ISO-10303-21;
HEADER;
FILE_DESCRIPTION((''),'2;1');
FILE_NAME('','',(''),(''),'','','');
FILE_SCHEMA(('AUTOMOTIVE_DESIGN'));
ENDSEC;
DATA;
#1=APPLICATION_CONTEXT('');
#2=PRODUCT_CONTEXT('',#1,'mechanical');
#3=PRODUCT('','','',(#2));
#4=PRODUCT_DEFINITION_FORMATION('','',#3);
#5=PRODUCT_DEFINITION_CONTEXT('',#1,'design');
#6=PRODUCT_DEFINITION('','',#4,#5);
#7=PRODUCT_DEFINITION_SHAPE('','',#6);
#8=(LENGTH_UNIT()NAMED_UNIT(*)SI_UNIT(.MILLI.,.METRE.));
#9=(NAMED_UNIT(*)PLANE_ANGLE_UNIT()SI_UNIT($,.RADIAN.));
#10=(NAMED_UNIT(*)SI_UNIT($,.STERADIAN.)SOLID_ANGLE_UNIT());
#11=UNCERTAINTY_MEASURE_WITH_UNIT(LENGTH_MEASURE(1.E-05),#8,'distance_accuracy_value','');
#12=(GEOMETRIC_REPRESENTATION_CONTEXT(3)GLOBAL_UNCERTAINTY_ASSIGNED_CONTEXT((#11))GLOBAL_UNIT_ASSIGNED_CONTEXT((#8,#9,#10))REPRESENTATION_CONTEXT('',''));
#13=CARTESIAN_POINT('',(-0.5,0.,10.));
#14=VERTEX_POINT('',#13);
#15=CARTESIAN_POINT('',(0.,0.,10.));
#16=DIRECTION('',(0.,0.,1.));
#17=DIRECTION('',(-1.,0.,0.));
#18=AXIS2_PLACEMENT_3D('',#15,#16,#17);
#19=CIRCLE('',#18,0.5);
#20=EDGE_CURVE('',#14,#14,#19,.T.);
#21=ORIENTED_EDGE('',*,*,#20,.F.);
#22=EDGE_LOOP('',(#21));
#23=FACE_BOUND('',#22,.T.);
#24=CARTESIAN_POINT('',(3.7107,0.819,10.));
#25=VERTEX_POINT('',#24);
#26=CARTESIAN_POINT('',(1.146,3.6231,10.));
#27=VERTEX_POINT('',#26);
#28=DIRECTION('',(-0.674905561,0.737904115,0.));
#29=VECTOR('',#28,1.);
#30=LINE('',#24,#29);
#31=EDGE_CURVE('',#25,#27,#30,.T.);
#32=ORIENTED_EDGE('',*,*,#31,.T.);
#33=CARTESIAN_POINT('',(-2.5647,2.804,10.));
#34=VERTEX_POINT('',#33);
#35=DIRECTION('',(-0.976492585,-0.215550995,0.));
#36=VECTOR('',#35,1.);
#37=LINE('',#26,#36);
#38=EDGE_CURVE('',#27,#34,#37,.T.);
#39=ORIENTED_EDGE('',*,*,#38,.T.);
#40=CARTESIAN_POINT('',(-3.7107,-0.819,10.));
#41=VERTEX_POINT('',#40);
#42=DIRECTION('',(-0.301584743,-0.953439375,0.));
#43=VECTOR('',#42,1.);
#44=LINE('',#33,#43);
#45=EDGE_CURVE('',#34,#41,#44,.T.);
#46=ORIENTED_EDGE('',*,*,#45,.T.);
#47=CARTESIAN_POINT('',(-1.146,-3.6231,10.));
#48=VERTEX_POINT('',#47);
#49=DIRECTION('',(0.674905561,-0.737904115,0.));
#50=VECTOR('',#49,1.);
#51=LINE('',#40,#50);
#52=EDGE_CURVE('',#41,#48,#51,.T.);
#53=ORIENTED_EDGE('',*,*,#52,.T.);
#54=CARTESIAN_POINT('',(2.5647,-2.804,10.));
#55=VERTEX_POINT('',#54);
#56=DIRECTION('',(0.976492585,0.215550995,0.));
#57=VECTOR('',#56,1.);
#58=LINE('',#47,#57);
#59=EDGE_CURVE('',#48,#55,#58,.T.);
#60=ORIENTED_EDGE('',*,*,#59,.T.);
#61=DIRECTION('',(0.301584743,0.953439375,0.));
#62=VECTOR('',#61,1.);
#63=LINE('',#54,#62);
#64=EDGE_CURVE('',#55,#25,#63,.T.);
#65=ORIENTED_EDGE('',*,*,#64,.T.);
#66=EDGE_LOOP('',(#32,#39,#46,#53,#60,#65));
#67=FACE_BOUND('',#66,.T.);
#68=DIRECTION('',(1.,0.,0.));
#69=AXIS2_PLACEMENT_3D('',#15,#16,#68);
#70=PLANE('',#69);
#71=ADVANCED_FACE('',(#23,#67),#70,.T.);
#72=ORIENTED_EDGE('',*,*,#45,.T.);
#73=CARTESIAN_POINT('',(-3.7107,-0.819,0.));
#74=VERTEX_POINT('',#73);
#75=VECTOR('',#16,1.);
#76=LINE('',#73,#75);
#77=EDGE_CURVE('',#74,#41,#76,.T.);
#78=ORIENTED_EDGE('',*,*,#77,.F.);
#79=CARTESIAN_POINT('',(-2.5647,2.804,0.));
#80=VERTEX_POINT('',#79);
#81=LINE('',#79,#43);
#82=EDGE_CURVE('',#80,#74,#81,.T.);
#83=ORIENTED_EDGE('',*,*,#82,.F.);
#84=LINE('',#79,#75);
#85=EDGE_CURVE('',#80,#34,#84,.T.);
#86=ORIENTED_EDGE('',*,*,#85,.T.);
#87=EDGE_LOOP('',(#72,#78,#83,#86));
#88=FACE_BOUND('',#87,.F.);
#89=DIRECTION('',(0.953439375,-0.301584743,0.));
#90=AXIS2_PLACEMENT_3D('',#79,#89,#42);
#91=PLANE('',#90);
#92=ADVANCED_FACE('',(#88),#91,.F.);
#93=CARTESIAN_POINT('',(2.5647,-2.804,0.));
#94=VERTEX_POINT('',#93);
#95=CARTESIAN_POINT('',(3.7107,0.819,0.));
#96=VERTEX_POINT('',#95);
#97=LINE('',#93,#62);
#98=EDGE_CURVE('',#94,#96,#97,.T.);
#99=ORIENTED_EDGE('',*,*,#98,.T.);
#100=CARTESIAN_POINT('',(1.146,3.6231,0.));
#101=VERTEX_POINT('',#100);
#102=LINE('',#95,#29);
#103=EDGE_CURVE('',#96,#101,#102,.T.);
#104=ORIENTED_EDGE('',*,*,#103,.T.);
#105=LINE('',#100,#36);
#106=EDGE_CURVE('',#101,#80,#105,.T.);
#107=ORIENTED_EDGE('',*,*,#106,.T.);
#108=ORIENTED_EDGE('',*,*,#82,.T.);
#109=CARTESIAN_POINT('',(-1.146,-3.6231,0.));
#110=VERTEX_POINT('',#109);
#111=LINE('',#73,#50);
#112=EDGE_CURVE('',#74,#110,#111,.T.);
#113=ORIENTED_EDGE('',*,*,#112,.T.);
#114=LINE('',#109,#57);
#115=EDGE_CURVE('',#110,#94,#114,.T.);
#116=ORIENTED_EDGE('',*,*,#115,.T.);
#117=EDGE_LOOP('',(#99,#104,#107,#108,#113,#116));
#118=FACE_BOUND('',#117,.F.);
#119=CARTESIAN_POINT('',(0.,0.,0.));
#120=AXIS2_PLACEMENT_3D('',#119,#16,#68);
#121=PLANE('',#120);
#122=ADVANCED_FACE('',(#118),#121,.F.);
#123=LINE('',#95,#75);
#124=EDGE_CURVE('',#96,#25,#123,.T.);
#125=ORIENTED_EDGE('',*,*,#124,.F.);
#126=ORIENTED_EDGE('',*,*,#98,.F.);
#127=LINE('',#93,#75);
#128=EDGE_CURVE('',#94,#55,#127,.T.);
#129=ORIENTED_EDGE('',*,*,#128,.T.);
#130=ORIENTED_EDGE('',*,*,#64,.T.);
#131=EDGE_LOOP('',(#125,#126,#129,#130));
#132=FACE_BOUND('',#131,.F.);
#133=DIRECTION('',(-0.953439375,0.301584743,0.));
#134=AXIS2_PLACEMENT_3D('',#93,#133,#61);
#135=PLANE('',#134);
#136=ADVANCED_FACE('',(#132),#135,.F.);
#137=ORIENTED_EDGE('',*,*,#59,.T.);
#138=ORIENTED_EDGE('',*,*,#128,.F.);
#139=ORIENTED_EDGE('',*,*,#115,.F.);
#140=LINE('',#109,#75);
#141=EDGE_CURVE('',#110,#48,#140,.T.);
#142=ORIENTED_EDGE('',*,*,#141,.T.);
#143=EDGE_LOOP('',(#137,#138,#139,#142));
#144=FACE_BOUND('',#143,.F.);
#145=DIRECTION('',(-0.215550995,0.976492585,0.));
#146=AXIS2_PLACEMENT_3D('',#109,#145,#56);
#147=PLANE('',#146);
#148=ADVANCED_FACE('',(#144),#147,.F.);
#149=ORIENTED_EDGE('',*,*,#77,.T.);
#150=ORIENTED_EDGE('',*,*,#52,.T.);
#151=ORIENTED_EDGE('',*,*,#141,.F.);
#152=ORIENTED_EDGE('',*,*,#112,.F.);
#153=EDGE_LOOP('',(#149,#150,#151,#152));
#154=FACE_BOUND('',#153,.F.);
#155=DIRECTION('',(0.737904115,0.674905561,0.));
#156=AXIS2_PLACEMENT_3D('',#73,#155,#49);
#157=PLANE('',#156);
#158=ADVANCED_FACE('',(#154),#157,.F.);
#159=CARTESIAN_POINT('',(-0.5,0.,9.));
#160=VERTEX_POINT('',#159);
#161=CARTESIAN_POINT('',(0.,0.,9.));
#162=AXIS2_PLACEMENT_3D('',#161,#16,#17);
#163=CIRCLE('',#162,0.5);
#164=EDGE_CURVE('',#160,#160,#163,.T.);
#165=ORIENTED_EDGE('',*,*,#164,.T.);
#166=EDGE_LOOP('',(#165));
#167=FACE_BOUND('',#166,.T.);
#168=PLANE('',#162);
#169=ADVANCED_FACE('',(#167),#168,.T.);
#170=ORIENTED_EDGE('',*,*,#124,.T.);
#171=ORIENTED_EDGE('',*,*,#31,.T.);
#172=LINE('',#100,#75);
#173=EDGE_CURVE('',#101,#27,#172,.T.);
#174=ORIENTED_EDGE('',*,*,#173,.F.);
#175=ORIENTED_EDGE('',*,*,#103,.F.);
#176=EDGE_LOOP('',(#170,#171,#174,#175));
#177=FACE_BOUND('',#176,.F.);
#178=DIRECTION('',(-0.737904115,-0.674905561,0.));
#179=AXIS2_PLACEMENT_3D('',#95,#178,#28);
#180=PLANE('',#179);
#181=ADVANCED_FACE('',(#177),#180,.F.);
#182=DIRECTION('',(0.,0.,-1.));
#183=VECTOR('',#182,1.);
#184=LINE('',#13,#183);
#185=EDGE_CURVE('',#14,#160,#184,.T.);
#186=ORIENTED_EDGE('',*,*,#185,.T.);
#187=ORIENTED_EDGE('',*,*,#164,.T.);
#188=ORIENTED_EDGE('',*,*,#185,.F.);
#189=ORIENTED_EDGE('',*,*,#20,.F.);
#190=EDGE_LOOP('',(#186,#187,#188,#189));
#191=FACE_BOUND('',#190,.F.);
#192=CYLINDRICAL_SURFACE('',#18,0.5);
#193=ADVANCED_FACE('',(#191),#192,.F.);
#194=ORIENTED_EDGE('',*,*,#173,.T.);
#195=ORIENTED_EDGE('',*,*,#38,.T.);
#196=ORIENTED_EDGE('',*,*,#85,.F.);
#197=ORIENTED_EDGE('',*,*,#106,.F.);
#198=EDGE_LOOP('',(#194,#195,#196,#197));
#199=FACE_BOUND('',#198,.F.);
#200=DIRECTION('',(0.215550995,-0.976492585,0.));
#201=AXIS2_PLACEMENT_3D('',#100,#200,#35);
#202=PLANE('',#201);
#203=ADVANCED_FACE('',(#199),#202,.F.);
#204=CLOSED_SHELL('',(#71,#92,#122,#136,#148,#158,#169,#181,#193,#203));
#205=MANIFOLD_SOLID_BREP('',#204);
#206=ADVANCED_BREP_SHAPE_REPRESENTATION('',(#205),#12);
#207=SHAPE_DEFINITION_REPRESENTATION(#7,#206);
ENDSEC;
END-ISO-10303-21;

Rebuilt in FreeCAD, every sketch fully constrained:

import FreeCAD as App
import Part
import Sketcher
from FreeCAD import Vector
Q = App.Units.Quantity


def add_polygon(sketch, points):
    """Adds a closed chain of lines whose ends are joined by coincident constraints."""
    first, n = sketch.GeometryCount, len(points)
    for a, b in zip(points, points[1:] + points[:1]):
        sketch.addGeometry(Part.LineSegment(App.Vector(*a, 0), App.Vector(*b, 0)), False)
    for i in range(n):
        sketch.addConstraint(Sketcher.Constraint("Coincident", first + i, 2, first + (i + 1) % n, 1))

doc = App.newDocument("Part")
body = doc.addObject("PartDesign::Body", "Body")

# Sketch on XY plane
sketch1 = body.newObject("Sketcher::SketchObject", "Sketch")
sketch1.AttachmentSupport = (doc.getObject("XY_Plane"), [""])
sketch1.MapMode = "FlatFace"
add_polygon(sketch1, [(-1.1, -3.6), (2.6, -2.8), (3.7, 0.8), (1.1, 3.6), (-2.6, 2.8), (-3.7, -0.8)])  # lines 0-5
sketch1.addConstraint(Sketcher.Constraint("Symmetric", 0, 2, 3, 2, -1, 1))
sketch1.addConstraint(Sketcher.Constraint("Symmetric", 1, 2, 4, 2, -1, 1))
sketch1.addConstraint(Sketcher.Constraint("Symmetric", 2, 2, 5, 2, -1, 1))
sketch1.addConstraint(Sketcher.Constraint("Equal", 0, 1))
sketch1.addConstraint(Sketcher.Constraint("Equal", 1, 2))
sketch1.addConstraint(Sketcher.Constraint("Distance", 0, Q("3.8 mm")))
sketch1.addConstraint(Sketcher.Constraint("DistanceY", 0, 2, -1, 1, Q("2.804 mm")))
sketch1.addConstraint(Sketcher.Constraint("DistanceY", -1, 1, 1, 2, Q("0.819 mm")))
sketch1.addConstraint(Sketcher.Constraint("DistanceX", -1, 1, 2, 2, Q("1.146 mm")))
pad1 = body.newObject("PartDesign::Pad", "Pad")
pad1.Profile = sketch1
pad1.Length = 10

# Sketch on XY plane
sketch2 = body.newObject("Sketcher::SketchObject", "Sketch001")
sketch2.AttachmentSupport = (doc.getObject("XY_Plane"), [""])
sketch2.MapMode = "FlatFace"
sketch2.AttachmentOffset = App.Placement(Vector(0, 0, 10), App.Rotation())
sketch2.addGeometry(Part.Circle(Vector(0, 0, 0), Vector(0, 0, 1), 0.5), False)
sketch2.addConstraint(Sketcher.Constraint("Coincident", 0, 3, -1, 1))
sketch2.addConstraint(Sketcher.Constraint("Diameter", 0, Q("1 mm")))
pocket1 = body.newObject("PartDesign::Pocket", "Pocket")
pocket1.Profile = sketch2
pocket1.Length = 1

doc.recompute()
